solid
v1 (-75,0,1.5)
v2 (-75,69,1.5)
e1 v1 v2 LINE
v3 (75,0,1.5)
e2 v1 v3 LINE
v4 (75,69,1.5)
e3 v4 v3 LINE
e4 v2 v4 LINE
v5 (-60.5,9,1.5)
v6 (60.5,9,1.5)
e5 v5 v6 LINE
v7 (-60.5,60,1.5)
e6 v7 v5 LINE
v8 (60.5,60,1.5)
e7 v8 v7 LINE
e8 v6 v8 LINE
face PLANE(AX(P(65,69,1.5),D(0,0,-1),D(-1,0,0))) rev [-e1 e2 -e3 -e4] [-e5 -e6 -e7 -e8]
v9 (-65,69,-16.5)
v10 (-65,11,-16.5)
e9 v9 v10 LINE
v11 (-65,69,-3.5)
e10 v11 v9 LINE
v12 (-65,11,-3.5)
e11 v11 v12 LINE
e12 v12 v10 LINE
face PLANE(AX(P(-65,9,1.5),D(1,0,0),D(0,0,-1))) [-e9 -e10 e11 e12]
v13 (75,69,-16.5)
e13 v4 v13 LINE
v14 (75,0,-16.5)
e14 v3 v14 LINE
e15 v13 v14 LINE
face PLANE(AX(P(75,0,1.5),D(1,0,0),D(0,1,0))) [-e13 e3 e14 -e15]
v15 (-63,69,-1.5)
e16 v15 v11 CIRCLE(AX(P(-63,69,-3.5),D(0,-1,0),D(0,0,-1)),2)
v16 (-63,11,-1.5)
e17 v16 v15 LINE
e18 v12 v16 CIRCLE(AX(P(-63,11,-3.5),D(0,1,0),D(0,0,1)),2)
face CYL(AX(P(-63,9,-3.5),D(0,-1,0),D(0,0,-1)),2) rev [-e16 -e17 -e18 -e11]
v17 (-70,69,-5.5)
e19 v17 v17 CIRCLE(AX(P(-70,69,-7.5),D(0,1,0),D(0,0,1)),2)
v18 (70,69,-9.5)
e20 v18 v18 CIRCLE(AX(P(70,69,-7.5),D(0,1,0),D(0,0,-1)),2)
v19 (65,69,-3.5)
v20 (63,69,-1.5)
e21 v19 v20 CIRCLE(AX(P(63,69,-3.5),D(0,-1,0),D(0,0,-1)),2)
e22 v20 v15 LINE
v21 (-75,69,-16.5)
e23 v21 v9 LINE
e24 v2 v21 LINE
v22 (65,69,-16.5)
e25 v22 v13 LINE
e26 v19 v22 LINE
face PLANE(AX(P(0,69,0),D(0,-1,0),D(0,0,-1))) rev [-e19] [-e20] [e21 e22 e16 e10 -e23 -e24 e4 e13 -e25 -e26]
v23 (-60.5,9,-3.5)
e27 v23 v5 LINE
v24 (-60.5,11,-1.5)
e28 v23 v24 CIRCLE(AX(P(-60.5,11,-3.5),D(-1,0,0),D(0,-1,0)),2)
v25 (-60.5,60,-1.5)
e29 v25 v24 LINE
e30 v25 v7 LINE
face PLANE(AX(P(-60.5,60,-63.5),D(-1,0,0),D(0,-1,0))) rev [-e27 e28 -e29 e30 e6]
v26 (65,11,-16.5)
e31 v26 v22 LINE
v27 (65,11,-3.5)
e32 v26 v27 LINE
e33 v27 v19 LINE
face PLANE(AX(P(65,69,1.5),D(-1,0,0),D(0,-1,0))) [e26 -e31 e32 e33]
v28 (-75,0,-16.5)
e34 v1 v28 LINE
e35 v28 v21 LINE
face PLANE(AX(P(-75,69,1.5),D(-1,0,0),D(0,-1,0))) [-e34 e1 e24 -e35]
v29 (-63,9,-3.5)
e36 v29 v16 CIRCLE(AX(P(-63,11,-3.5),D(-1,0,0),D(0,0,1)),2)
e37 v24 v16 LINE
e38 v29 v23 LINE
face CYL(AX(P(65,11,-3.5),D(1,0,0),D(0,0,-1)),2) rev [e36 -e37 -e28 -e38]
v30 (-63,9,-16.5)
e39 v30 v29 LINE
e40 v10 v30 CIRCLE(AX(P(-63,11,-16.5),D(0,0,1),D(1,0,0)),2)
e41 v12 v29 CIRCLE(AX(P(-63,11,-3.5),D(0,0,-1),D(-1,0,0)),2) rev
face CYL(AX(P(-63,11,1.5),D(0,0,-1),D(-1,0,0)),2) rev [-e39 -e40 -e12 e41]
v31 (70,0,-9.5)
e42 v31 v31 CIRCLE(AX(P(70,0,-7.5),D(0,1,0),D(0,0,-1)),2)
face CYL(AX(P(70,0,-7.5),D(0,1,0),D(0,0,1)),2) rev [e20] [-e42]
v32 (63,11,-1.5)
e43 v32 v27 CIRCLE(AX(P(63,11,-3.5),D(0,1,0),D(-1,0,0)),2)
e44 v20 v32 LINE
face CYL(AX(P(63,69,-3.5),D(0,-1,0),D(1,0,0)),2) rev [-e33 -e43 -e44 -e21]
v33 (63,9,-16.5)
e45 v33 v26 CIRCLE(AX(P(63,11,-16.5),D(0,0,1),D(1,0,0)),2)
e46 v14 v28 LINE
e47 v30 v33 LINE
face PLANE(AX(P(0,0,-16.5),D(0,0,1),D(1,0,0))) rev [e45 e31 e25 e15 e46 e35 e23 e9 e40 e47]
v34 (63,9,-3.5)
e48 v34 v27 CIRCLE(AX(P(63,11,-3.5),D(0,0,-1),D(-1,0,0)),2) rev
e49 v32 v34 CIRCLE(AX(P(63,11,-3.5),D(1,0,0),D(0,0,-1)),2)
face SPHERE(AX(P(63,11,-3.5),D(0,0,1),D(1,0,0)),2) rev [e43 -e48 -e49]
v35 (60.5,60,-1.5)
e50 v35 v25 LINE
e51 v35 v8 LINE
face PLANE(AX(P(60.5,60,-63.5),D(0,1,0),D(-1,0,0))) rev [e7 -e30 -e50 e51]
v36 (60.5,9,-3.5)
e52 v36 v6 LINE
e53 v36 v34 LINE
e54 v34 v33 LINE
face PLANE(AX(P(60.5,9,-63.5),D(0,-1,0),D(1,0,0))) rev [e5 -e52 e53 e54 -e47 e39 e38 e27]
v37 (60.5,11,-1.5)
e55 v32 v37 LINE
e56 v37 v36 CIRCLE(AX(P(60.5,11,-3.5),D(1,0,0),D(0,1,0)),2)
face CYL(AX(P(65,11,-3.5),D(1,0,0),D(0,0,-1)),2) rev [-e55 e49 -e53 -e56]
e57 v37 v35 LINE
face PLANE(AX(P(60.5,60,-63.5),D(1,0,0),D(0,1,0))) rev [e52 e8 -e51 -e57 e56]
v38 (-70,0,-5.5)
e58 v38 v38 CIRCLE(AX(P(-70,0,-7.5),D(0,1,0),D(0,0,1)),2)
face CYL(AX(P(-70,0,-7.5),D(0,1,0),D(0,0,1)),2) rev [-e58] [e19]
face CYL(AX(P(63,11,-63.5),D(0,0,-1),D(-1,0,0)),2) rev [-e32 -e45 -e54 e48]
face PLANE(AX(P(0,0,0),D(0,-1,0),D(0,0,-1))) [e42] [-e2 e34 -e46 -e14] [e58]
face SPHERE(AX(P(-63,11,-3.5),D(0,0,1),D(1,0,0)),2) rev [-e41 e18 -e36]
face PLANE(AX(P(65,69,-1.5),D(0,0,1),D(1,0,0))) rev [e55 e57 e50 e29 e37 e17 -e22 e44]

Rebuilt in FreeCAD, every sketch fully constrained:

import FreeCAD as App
import Part
import Sketcher

V = App.Vector
Q = App.Units.Quantity


def edges_at(feature, points):
    """Names of the edges that pass closest to the given points."""
    edges = feature.Shape.Edges
    near = lambda p: min(range(len(edges)), key=lambda i: edges[i].distToShape(Part.Vertex(*p))[0])
    return sorted({f"Edge{near(p) + 1}" for p in points})


def add_polygon(sketch, points):
    """Adds a closed chain of lines whose ends are joined by coincident constraints."""
    first, n = sketch.GeometryCount, len(points)
    for a, b in zip(points, points[1:] + points[:1]):
        sketch.addGeometry(Part.LineSegment(App.Vector(*a, 0), App.Vector(*b, 0)), False)
    for i in range(n):
        sketch.addConstraint(Sketcher.Constraint("Coincident", first + i, 2, first + (i + 1) % n, 1))

doc = App.newDocument("Part")
body = doc.addObject("PartDesign::Body", "Body")

# Sketch on XZ plane
sketch1 = body.newObject("Sketcher::SketchObject", "Sketch")
sketch1.AttachmentSupport = (doc.getObject("XZ_Plane"), [""])
sketch1.MapMode = "FlatFace"
add_polygon(sketch1, [(-65, -1.5), (-65, 1.5), (65, 1.5), (65, -1.5)])  # lines 0-3
sketch1.addConstraint([
    Sketcher.Constraint("Vertical", 0),
    Sketcher.Constraint("Horizontal", 1),
    Sketcher.Constraint("Vertical", 2),
    Sketcher.Constraint("Horizontal", 3),
    Sketcher.Constraint("Symmetric", 0, 2, 2, 2, -1, 1),
    Sketcher.Constraint("DistanceX", 1, 1, 1, 2, Q("130 mm")),
    Sketcher.Constraint("DistanceY", 0, 1, 0, 2, Q("3 mm")),
])
pad1 = body.newObject("PartDesign::Pad", "Pad")
pad1.Profile = sketch1
pad1.Length = 69
pad1.Reversed = True

# Sketch on XY plane
sketch2 = body.newObject("Sketcher::SketchObject", "Sketch001")
sketch2.AttachmentSupport = (doc.getObject("XY_Plane"), [""])
sketch2.MapMode = "FlatFace"
sketch2.AttachmentOffset = App.Placement(V(0, 0, 1.5), App.Rotation())
add_polygon(sketch2, [(-60, 60), (-60, 9), (60, 9), (60, 60)])  # lines 0-3
sketch2.addConstraint([
    Sketcher.Constraint("Vertical", 0),
    Sketcher.Constraint("Horizontal", 1),
    Sketcher.Constraint("Vertical", 2),
    Sketcher.Constraint("Horizontal", 3),
    Sketcher.Constraint("DistanceX", 1, 1, 1, 2, Q("121 mm")),
    Sketcher.Constraint("DistanceY", 0, 2, 0, 1, Q("51 mm")),
    Sketcher.Constraint("DistanceY", -1, 1, 0, 2, Q("9 mm")),
    Sketcher.Constraint("DistanceX", 0, 2, -1, 1, Q("60.5 mm")),
])
pocket1 = body.newObject("PartDesign::Pocket", "Pocket")
pocket1.Profile = sketch2
pocket1.Length = 65

# Sketch on XY plane
sketch3 = body.newObject("Sketcher::SketchObject", "Sketch002")
sketch3.AttachmentSupport = (doc.getObject("XY_Plane"), [""])
sketch3.MapMode = "FlatFace"
sketch3.AttachmentOffset = App.Placement(V(0, 0, -1.5), App.Rotation())
add_polygon(sketch3, [(75, 0), (-75, 0), (-75, 69), (-65, 69), (-65, 9), (65, 9), (65, 69), (75, 69)])  # lines 0-7
sketch3.addConstraint([
    Sketcher.Constraint("Horizontal", 0),
    Sketcher.Constraint("Vertical", 1),
    Sketcher.Constraint("Horizontal", 2),
    Sketcher.Constraint("Vertical", 3),
    Sketcher.Constraint("Horizontal", 4),
    Sketcher.Constraint("Vertical", 5),
    Sketcher.Constraint("Horizontal", 6),
    Sketcher.Constraint("Vertical", 7),
    Sketcher.Constraint("Symmetric", 0, 2, 7, 2, -1, 1),
    Sketcher.Constraint("Symmetric", 2, 2, 5, 2, -2),
    Sketcher.Constraint("DistanceX", 0, 2, 0, 1, Q("150 mm")),
    Sketcher.Constraint("DistanceX", 2, 1, 2, 2, Q("10 mm")),
    Sketcher.Constraint("DistanceY", 1, 1, 1, 2, Q("69 mm")),
    Sketcher.Constraint("DistanceY", 3, 2, 3, 1, Q("60 mm")),
])
pad2 = body.newObject("PartDesign::Pad", "Pad001")
pad2.Profile = sketch3
pad2.Type = "TwoLengths"
pad2.Length = 15
pad2.Length2 = 3
pad2.Reversed = True

# Sketch on XZ plane
sketch4 = body.newObject("Sketcher::SketchObject", "Sketch003")
sketch4.AttachmentSupport = (doc.getObject("XZ_Plane"), [""])
sketch4.MapMode = "FlatFace"
sketch4.AttachmentOffset = App.Placement(V(0, 0, -69), App.Rotation())
sketch4.addGeometry([
    Part.Circle(V(-70, -7.5, 0), V(0, 0, 1), 2),
    Part.Circle(V(70, -7.5, 0), V(0, 0, 1), 2),
], False)
sketch4.addConstraint([
    Sketcher.Constraint("Equal", 0, 1),
    Sketcher.Constraint("Symmetric", 0, 3, 1, 3, -2),
    Sketcher.Constraint("Diameter", 0, Q("4 mm")),
    Sketcher.Constraint("DistanceX", 0, 3, -1, 1, Q("70 mm")),
    Sketcher.Constraint("DistanceY", 0, 3, -1, 1, Q("7.5 mm")),
])
pocket2 = body.newObject("PartDesign::Pocket", "Pocket001")
pocket2.Profile = sketch4
pocket2.Type = "ThroughAll"
pocket2.Reversed = True
doc.recompute()

fillet = body.newObject("PartDesign::Fillet", "Fillet")
fillet.Base = (pocket2, edges_at(pocket2, [(-65, 9, -9), (65, 9, -9)]))
fillet.Radius = 2
doc.recompute()

fillet2 = body.newObject("PartDesign::Fillet", "Fillet001")
fillet2.Base = (fillet, edges_at(fillet, [
    (-61.75, 9, -1.5),
    (-65, 40, -1.5),
    (61.75, 9, -1.5),
    (65, 40, -1.5),
    (-64.414, 9.586, -1.5),
    (64.414, 9.586, -1.5),
]))
fillet2.Radius = 2

doc.recompute()
